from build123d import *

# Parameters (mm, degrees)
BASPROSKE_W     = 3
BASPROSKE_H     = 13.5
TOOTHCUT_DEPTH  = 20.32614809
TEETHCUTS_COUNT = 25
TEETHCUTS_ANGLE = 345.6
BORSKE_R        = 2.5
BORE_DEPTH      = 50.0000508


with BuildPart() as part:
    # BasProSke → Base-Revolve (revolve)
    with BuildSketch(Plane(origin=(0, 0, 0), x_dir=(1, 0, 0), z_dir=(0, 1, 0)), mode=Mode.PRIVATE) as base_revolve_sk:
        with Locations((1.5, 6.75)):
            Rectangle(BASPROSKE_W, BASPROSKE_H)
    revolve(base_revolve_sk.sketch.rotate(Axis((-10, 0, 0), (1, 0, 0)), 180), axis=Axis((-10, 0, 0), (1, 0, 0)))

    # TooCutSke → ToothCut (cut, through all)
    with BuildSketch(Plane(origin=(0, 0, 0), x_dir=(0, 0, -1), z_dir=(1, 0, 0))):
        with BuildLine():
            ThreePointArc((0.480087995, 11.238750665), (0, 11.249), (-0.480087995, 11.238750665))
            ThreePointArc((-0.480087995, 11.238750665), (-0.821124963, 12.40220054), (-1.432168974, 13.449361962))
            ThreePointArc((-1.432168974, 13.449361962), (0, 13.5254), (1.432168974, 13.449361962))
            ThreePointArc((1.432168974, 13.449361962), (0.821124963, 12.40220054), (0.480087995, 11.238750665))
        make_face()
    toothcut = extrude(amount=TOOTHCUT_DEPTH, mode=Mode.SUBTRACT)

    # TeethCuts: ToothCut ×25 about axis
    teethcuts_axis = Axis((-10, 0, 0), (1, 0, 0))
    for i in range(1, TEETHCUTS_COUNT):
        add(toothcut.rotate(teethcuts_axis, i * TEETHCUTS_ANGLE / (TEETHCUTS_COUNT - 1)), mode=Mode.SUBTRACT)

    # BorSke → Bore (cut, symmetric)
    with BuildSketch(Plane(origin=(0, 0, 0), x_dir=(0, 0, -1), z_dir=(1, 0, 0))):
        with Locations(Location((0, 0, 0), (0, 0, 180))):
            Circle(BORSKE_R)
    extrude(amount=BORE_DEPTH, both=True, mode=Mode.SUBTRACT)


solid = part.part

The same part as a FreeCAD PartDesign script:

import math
import FreeCAD as App
import Part
import Sketcher
Q = App.Units.Quantity

doc = App.newDocument("Part")
body = doc.addObject("PartDesign::Body", "Body")

sketch1 = body.newObject("Sketcher::SketchObject", "Sketch")
sketch1.AttachmentSupport = (doc.getObject("XZ_Plane"), [""])
sketch1.MapMode = "FlatFace"
sketch1.addGeometry([
    Part.LineSegment(App.Vector(0, -13.5, 0), App.Vector(0, 0, 0)),
    Part.LineSegment(App.Vector(0, 0, 0), App.Vector(3, 0, 0)),
    Part.LineSegment(App.Vector(3, 0, 0), App.Vector(3, -13.5, 0)),
    Part.LineSegment(App.Vector(3, -13.5, 0), App.Vector(0, -13.5, 0)),
], False)
sketch1.addConstraint([
    Sketcher.Constraint("Coincident", 0, 2, 1, 1),
    Sketcher.Constraint("Coincident", 1, 2, 2, 1),
    Sketcher.Constraint("Coincident", 2, 2, 3, 1),
    Sketcher.Constraint("Coincident", 3, 2, 0, 1),
    Sketcher.Constraint("Vertical", 0),
    Sketcher.Constraint("Horizontal", 1),
    Sketcher.Constraint("Vertical", 2),
    Sketcher.Constraint("Horizontal", 3),
    Sketcher.Constraint("Coincident", 0, 2, -1, 1),
    Sketcher.Constraint("DistanceX", 1, 1, 1, 2, Q("3 mm")),
    Sketcher.Constraint("DistanceY", 0, 1, 0, 2, Q("13.5 mm")),
])
revolution = body.newObject("PartDesign::Revolution", "Revolution")
revolution.Profile = sketch1
revolution.ReferenceAxis = (sketch1, ["H_Axis"])
revolution.Angle = 360

sketch2 = body.newObject("Sketcher::SketchObject", "Sketch001")
sketch2.AttachmentSupport = (doc.getObject("YZ_Plane"), [""])
sketch2.MapMode = "FlatFace"
sketch2.addGeometry([
    Part.ArcOfCircle(Part.Circle(App.Vector(0, 0, 0), App.Vector(0, 0, 1), 11.249), math.radians(-2.446028), math.radians(2.446028)),
    Part.ArcOfCircle(Part.Circle(App.Vector(10.424401, -5.413326, 0), App.Vector(0, 0, 1), 5), math.radians(52.771714), math.radians(80.626478)),
    Part.ArcOfCircle(Part.Circle(App.Vector(0, 0, 0), App.Vector(0, 0, 1), 13.5254), math.radians(-6.078294), math.radians(6.078294)),
    Part.ArcOfCircle(Part.Circle(App.Vector(10.424401, 5.413326, 0), App.Vector(0, 0, 1), 5), math.radians(-80.626478), math.radians(-52.771714)),
], False)
sketch2.addConstraint([
    Sketcher.Constraint("Coincident", 0, 1, 1, 2),
    Sketcher.Constraint("Coincident", 1, 1, 2, 1),
    Sketcher.Constraint("Coincident", 2, 2, 3, 2),
    Sketcher.Constraint("Coincident", 3, 1, 0, 2),
    Sketcher.Constraint("Coincident", 0, 3, -1, 1),
    Sketcher.Constraint("Coincident", 2, 3, -1, 1),
    Sketcher.Constraint("Equal", 1, 3),
    Sketcher.Constraint("Symmetric", 1, 3, 3, 3, -1),
    Sketcher.Constraint("Radius", 1, Q("5 mm")),
    Sketcher.Constraint("Radius", 0, Q("11.249 mm")),
    Sketcher.Constraint("Radius", 2, Q("13.5254 mm")),
    Sketcher.Constraint("DistanceX", -1, 1, 1, 3, Q("10.424401 mm")),
    Sketcher.Constraint("DistanceX", -1, 1, 0, 1, Q("11.238751 mm")),
])
pocket1 = body.newObject("PartDesign::Pocket", "Pocket")
pocket1.Profile = sketch2
pocket1.Type = "ThroughAll"
pocket1.Reversed = True
doc.recompute()

polarpattern = body.newObject("PartDesign::PolarPattern", "PolarPattern")
polarpattern.Originals = [pocket1]
polarpattern.Axis = (doc.getObject("X_Axis"), [""])
polarpattern.Angle = 360
polarpattern.Occurrences = 25
body.Tip = polarpattern

sketch3 = body.newObject("Sketcher::SketchObject", "Sketch002")
sketch3.AttachmentSupport = (doc.getObject("YZ_Plane"), [""])
sketch3.MapMode = "FlatFace"
sketch3.addGeometry(Part.Circle(App.Vector(0, 0, 0), App.Vector(0, 0, 1), 2.5), False)
sketch3.addConstraint([
    Sketcher.Constraint("Coincident", 0, 3, -1, 1),
    Sketcher.Constraint("Diameter", 0, Q("5 mm")),
])
pocket2 = body.newObject("PartDesign::Pocket", "Pocket001")
pocket2.Profile = sketch3
pocket2.Length = 100.000102
pocket2.Midplane = True

doc.recompute()
